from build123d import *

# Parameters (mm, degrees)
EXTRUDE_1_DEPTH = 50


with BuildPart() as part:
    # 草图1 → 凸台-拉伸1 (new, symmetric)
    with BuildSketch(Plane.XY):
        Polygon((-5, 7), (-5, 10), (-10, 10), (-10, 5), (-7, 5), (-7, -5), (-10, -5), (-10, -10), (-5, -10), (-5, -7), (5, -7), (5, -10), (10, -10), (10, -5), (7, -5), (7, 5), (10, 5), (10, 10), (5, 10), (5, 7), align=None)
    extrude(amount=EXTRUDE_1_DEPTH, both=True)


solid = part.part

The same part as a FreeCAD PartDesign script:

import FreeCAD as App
import Part
import Sketcher


def add_polygon(sketch, points):
    """Adds a closed chain of lines whose ends are joined by coincident constraints."""
    first, n = sketch.GeometryCount, len(points)
    for a, b in zip(points, points[1:] + points[:1]):
        sketch.addGeometry(Part.LineSegment(App.Vector(*a, 0), App.Vector(*b, 0)), False)
    for i in range(n):
        sketch.addConstraint(Sketcher.Constraint("Coincident", first + i, 2, first + (i + 1) % n, 1))

doc = App.newDocument("Part")
body = doc.addObject("PartDesign::Body", "Body")

# Sketch on XY plane
sketch1 = body.newObject("Sketcher::SketchObject", "Sketch")
sketch1.AttachmentSupport = (doc.getObject("XY_Plane"), [""])
sketch1.MapMode = "FlatFace"
add_polygon(sketch1, [(-5, 7), (-5, 10), (-10, 10), (-10, 5), (-7, 5), (-7, -5), (-10, -5), (-10, -10), (-5, -10), (-5, -7), (5, -7), (5, -10), (10, -10), (10, -5), (7, -5), (7, 5), (10, 5), (10, 10), (5, 10), (5, 7)])  # lines 0-19
sketch1.addConstraint([
    Sketcher.Constraint("Vertical", 0),
    Sketcher.Constraint("Horizontal", 1),
    Sketcher.Constraint("Vertical", 2),
    Sketcher.Constraint("Horizontal", 3),
    Sketcher.Constraint("Vertical", 4),
    Sketcher.Constraint("Horizontal", 5),
    Sketcher.Constraint("Vertical", 6),
    Sketcher.Constraint("Horizontal", 7),
    Sketcher.Constraint("Vertical", 8),
    Sketcher.Constraint("Horizontal", 9),
    Sketcher.Constraint("Vertical", 10),
    Sketcher.Constraint("Horizontal", 11),
    Sketcher.Constraint("Vertical", 12),
    Sketcher.Constraint("Horizontal", 13),
    Sketcher.Constraint("Vertical", 14),
    Sketcher.Constraint("Horizontal", 15),
    Sketcher.Constraint("Vertical", 16),
    Sketcher.Constraint("Horizontal", 17),
    Sketcher.Constraint("Vertical", 18),
    Sketcher.Constraint("Horizontal", 19),
    Sketcher.Constraint("Symmetric", 0, 2, 10, 2, -1, 1),
    Sketcher.Constraint("Symmetric", 2, 2, 12, 2, -1, 1),
    Sketcher.Constraint("Symmetric", 4, 2, 14, 2, -1, 1),
    Sketcher.Constraint("Symmetric", 6, 2, 16, 2, -1, 1),
    Sketcher.Constraint("Symmetric", 8, 2, 18, 2, -1, 1),
    Sketcher.Constraint("Symmetric", 7, 2, 10, 2, -2),
    Sketcher.Constraint("Symmetric", 5, 2, 12, 2, -2),
    Sketcher.Constraint("Equal", 15, 0),
    Sketcher.Constraint("Equal", 17, 2),
    Sketcher.Constraint("Equal", 19, 4),
    Sketcher.Constraint("DistanceX", 1, 2, 1, 1, 5.0),
    Sketcher.Constraint("DistanceX", 3, 1, 3, 2, 3.0),
    Sketcher.Constraint("DistanceX", 9, 1, 9, 2, 10.0),
])
pad1 = body.newObject("PartDesign::Pad", "Pad")
pad1.Profile = sketch1
pad1.Length = 100
pad1.Midplane = True

doc.recompute()
